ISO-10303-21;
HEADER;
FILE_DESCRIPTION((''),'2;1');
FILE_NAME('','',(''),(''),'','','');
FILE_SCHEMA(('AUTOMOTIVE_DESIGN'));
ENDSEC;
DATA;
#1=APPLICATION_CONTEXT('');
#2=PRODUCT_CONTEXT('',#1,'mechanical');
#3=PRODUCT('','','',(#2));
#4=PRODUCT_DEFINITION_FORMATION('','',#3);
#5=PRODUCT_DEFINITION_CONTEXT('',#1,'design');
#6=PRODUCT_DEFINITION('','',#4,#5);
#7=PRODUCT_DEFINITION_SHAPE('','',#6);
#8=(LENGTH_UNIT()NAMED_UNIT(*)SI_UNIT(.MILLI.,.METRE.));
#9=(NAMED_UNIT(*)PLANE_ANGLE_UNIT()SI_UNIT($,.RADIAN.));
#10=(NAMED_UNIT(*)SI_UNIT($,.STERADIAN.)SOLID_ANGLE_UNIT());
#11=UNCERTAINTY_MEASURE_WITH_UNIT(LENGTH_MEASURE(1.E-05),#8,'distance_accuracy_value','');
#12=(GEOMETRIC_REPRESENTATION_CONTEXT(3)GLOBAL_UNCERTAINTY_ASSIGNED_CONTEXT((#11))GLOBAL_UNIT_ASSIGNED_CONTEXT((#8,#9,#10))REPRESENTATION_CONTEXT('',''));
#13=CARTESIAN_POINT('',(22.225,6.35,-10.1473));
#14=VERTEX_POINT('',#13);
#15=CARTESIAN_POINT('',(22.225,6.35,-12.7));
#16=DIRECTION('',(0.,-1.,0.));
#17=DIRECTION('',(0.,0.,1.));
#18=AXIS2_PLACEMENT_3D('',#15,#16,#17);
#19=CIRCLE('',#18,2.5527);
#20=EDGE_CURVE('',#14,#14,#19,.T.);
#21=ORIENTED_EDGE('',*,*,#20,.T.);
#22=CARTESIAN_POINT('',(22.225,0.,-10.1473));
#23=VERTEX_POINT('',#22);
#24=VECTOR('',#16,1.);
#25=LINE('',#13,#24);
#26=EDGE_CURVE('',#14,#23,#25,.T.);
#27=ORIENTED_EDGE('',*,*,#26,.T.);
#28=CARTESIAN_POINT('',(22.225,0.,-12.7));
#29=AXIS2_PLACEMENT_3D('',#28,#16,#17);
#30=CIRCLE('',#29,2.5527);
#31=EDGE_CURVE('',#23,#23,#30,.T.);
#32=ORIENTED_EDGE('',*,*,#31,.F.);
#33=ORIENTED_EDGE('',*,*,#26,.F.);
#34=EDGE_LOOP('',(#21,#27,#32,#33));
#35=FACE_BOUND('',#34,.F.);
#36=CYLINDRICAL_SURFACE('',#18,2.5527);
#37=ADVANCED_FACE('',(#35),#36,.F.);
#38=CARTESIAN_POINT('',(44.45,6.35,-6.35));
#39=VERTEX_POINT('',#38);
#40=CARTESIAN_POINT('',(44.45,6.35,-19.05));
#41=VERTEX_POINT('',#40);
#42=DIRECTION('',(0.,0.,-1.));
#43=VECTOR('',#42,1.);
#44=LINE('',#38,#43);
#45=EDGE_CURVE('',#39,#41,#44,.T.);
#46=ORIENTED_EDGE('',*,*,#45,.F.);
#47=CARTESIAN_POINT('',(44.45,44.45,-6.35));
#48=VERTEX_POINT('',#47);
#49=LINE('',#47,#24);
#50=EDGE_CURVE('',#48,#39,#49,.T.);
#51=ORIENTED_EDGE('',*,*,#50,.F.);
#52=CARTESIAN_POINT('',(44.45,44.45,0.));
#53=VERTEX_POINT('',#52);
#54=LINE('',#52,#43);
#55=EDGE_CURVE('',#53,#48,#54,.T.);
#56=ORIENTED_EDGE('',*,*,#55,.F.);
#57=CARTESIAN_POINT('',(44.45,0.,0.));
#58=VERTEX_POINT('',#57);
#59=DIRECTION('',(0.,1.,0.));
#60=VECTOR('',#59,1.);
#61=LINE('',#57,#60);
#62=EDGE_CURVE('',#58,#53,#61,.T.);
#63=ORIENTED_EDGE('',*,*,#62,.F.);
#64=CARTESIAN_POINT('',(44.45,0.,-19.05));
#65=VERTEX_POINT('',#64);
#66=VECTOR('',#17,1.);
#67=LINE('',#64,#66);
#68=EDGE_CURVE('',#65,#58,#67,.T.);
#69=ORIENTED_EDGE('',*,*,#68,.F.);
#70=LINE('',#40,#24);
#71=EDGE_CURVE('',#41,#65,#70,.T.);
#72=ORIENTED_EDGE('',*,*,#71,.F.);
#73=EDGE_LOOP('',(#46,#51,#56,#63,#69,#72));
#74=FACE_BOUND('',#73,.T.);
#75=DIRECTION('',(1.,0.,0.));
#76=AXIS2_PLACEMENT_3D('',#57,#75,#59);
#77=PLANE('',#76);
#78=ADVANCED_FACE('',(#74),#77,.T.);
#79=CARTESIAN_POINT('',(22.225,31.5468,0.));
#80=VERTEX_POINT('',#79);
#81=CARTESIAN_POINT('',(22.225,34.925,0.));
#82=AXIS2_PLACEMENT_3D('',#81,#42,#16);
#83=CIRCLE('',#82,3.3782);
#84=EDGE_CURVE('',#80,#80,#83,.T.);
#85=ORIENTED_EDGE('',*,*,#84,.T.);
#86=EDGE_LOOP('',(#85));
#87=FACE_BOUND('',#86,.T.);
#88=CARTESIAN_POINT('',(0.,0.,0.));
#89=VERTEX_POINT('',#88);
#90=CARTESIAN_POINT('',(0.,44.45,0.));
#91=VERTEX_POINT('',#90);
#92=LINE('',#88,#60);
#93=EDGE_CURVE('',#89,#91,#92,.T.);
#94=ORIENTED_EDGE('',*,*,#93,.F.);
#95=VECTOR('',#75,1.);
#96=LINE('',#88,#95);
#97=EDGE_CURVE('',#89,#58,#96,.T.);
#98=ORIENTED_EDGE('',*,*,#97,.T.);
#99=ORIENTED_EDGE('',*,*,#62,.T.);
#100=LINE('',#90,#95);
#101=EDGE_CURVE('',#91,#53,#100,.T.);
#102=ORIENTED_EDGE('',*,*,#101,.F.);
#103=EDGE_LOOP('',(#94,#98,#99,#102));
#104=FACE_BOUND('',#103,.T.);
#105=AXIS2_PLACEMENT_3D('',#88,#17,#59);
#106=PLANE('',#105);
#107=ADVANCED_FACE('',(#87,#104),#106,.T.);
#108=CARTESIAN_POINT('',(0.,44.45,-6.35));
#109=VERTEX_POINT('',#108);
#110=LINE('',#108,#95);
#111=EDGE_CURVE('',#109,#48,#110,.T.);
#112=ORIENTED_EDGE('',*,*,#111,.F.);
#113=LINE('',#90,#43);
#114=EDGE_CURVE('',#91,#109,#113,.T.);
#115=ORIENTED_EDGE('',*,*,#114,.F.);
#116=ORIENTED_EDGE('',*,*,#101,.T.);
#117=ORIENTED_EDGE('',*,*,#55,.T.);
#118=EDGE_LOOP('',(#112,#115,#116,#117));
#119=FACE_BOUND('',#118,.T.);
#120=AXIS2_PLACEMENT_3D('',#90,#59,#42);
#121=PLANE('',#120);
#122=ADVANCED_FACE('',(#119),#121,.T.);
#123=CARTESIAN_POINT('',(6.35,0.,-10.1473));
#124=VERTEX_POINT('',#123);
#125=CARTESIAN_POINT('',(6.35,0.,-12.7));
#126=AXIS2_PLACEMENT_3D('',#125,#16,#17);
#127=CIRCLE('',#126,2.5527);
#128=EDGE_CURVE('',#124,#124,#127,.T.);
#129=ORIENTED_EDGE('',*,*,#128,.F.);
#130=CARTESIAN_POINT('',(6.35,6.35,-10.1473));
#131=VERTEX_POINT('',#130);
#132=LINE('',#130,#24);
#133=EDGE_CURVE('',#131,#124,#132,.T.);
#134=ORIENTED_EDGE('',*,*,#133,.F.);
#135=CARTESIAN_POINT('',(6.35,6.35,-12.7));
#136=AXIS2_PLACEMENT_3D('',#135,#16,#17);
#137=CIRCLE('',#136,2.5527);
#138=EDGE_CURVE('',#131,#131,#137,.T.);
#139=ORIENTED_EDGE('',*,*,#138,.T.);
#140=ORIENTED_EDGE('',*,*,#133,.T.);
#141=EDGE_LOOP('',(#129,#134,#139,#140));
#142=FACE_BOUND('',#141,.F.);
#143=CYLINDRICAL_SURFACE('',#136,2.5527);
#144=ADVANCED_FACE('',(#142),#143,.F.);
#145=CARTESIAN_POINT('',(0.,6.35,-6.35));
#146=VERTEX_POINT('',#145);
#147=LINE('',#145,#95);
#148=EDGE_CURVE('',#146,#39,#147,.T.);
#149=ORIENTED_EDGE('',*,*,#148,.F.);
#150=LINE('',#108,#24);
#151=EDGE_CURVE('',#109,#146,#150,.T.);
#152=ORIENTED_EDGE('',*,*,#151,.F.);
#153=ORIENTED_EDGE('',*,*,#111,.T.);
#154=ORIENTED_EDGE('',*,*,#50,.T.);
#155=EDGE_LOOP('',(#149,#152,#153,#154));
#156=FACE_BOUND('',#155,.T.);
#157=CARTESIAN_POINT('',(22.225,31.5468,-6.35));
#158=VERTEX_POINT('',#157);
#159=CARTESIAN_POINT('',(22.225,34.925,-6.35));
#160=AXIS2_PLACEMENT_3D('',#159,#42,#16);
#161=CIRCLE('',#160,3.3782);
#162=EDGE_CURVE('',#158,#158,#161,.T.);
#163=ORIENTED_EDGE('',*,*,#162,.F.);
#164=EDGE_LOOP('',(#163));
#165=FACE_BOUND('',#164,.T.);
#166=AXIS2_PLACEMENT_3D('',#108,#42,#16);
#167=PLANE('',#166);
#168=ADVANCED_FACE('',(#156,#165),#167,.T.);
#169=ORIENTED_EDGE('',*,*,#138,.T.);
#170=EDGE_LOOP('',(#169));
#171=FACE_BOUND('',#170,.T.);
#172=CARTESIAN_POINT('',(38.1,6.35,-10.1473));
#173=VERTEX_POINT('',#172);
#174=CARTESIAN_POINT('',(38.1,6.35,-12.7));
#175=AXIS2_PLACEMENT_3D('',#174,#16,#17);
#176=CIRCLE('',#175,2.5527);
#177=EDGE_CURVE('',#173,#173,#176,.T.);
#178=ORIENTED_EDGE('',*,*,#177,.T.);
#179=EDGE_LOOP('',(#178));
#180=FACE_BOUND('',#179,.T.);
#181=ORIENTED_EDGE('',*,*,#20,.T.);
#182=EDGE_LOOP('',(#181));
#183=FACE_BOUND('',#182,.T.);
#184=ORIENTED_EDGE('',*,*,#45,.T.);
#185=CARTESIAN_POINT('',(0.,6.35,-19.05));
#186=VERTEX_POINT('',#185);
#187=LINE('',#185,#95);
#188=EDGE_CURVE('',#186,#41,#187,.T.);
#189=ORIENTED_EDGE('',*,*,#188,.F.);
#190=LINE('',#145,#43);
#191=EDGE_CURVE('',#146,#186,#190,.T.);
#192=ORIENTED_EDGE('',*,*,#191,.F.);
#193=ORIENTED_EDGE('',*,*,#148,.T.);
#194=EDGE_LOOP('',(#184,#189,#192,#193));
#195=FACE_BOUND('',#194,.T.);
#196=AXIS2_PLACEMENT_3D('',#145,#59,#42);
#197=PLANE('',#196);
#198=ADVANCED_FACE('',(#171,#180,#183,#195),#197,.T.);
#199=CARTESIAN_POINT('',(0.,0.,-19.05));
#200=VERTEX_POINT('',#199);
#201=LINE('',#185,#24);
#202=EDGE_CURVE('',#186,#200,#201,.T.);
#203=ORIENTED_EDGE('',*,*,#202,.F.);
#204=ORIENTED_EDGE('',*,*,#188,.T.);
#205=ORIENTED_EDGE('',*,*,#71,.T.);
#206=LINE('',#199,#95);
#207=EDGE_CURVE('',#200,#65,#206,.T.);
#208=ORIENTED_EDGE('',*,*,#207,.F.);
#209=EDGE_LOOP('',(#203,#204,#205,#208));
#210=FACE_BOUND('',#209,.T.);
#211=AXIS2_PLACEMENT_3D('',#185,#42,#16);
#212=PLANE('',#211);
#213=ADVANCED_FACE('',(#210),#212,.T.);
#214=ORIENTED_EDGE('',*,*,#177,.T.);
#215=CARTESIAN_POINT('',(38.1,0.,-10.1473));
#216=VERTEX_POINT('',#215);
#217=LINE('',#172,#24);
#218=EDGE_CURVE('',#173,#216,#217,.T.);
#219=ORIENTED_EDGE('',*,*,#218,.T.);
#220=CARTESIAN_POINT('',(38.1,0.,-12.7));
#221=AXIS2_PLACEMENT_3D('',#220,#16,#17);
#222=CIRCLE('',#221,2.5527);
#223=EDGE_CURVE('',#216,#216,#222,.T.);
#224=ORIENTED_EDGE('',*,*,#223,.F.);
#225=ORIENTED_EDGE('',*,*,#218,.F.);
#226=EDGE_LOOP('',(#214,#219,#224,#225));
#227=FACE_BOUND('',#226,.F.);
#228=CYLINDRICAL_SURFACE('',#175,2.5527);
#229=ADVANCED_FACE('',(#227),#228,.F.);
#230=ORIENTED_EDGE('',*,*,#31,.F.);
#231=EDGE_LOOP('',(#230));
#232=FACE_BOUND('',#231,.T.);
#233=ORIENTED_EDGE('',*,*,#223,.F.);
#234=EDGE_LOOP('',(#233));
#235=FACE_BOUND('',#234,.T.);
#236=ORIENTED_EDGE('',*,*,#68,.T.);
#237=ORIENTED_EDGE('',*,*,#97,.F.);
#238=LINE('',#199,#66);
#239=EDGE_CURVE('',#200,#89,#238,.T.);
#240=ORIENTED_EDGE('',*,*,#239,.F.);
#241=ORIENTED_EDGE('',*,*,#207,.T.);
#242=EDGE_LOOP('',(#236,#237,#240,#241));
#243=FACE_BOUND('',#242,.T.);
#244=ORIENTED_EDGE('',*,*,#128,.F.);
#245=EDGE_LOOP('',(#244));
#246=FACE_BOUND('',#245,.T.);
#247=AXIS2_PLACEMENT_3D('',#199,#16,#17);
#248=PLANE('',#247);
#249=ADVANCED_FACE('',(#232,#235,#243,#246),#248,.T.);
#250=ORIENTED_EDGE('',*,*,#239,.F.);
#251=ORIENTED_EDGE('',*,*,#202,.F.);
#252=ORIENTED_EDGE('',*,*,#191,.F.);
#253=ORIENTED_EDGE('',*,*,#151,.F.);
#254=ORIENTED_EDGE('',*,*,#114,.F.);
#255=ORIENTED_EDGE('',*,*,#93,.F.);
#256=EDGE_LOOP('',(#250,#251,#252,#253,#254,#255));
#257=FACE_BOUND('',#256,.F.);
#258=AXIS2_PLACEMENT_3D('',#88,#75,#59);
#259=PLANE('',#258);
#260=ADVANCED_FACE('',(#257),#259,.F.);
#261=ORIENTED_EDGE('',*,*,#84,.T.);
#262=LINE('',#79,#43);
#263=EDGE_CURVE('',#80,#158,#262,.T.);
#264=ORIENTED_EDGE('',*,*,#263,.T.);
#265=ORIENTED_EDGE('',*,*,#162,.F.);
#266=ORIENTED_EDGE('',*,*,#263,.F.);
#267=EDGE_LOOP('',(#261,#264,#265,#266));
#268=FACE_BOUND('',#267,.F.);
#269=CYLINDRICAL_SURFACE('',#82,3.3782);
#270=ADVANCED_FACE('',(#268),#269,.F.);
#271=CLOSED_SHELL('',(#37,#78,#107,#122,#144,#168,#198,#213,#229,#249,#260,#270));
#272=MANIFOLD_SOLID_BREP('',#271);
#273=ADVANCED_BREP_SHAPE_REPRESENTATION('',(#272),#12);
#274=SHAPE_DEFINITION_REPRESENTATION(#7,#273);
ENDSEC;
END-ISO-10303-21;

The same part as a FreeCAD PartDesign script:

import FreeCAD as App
import Part
import Sketcher
from FreeCAD import Vector
Q = App.Units.Quantity


def add_polygon(sketch, points):
    """Adds a closed chain of lines whose ends are joined by coincident constraints."""
    first, n = sketch.GeometryCount, len(points)
    for a, b in zip(points, points[1:] + points[:1]):
        sketch.addGeometry(Part.LineSegment(App.Vector(*a, 0), App.Vector(*b, 0)), False)
    for i in range(n):
        sketch.addConstraint(Sketcher.Constraint("Coincident", first + i, 2, first + (i + 1) % n, 1))

doc = App.newDocument("Part")
body = doc.addObject("PartDesign::Body", "Body")

sketch1 = body.newObject("Sketcher::SketchObject", "Sketch")
sketch1.AttachmentSupport = (doc.getObject("YZ_Plane"), [""])
sketch1.MapMode = "FlatFace"
add_polygon(sketch1, [(44, 0), (0, 0), (0, -19), (6, -19), (6, -6), (44, -6)])
sketch1.addConstraint(Sketcher.Constraint("Horizontal", 0))
sketch1.addConstraint(Sketcher.Constraint("Vertical", 1))
sketch1.addConstraint(Sketcher.Constraint("Horizontal", 2))
sketch1.addConstraint(Sketcher.Constraint("Vertical", 3))
sketch1.addConstraint(Sketcher.Constraint("Horizontal", 4))
sketch1.addConstraint(Sketcher.Constraint("Vertical", 5))
sketch1.addConstraint(Sketcher.Constraint("Coincident", 0, 2, -1, 1))
sketch1.addConstraint(Sketcher.Constraint("Equal", 2, 5))
sketch1.addConstraint(Sketcher.Constraint("DistanceX", 0, 2, 0, 1, Q("1.75 in")))
sketch1.addConstraint(Sketcher.Constraint("DistanceX", 2, 1, 2, 2, Q("0.25 in")))
sketch1.addConstraint(Sketcher.Constraint("DistanceY", 1, 2, 1, 1, Q("0.75 in")))
pad1 = body.newObject("PartDesign::Pad", "Pad")
pad1.Profile = sketch1
pad1.Length = Q("1.75 in")

sketch2 = body.newObject("Sketcher::SketchObject", "Sketch001")
sketch2.AttachmentSupport = (doc.getObject("XY_Plane"), [""])
sketch2.MapMode = "FlatFace"
sketch2.addGeometry(Part.Circle(Vector(22.2, 34.9, 0), Vector(0, 0, 1), 3.4), False)
sketch2.addConstraint(Sketcher.Constraint("Diameter", 0, Q("0.266 in")))
sketch2.addConstraint(Sketcher.Constraint("DistanceX", -1, 1, 0, 3, Q("0.875 in")))
sketch2.addConstraint(Sketcher.Constraint("DistanceY", -1, 1, 0, 3, Q("1.375 in")))
doc.recompute()
hole = body.newObject("PartDesign::Hole", "Hole")
hole.Profile = sketch2
hole.ThreadType = "None"
hole.Diameter = Q("0.266 in")
hole.DepthType = "ThroughAll"

sketch3 = body.newObject("Sketcher::SketchObject", "Sketch002")
sketch3.AttachmentSupport = (doc.getObject("XZ_Plane"), [""])
sketch3.MapMode = "FlatFace"
sketch3.AttachmentOffset = App.Placement(Vector(0, 0, -0.25 * 25.4), App.Rotation())
sketch3.addGeometry(Part.Circle(Vector(22.2, -12.7, 0), Vector(0, 0, 1), 2.6), False)
sketch3.addGeometry(Part.Circle(Vector(6.3, -12.7, 0), Vector(0, 0, 1), 2.6), False)
sketch3.addGeometry(Part.Circle(Vector(38.1, -12.7, 0), Vector(0, 0, 1), 2.6), False)
sketch3.addConstraint(Sketcher.Constraint("Equal", 0, 1))
sketch3.addConstraint(Sketcher.Constraint("Equal", 1, 2))
sketch3.addConstraint(Sketcher.Constraint("Horizontal", 0, 3, 1, 3))
sketch3.addConstraint(Sketcher.Constraint("Horizontal", 1, 3, 2, 3))
sketch3.addConstraint(Sketcher.Constraint("Diameter", 0, Q("0.201 in")))
sketch3.addConstraint(Sketcher.Constraint("DistanceY", 0, 3, -1, 1, Q("0.5 in")))
sketch3.addConstraint(Sketcher.Constraint("DistanceX", -1, 1, 2, 3, Q("1.5 in")))
sketch3.addConstraint(Sketcher.Constraint("DistanceX", -1, 1, 1, 3, Q("0.25 in")))
sketch3.addConstraint(Sketcher.Constraint("DistanceX", -1, 1, 0, 3, Q("0.875 in")))
doc.recompute()
hole2 = body.newObject("PartDesign::Hole", "Hole001")
hole2.Profile = sketch3
hole2.ThreadType = "None"
hole2.Diameter = Q("0.201 in")
hole2.DepthType = "ThroughAll"
hole2.Reversed = True

doc.recompute()
